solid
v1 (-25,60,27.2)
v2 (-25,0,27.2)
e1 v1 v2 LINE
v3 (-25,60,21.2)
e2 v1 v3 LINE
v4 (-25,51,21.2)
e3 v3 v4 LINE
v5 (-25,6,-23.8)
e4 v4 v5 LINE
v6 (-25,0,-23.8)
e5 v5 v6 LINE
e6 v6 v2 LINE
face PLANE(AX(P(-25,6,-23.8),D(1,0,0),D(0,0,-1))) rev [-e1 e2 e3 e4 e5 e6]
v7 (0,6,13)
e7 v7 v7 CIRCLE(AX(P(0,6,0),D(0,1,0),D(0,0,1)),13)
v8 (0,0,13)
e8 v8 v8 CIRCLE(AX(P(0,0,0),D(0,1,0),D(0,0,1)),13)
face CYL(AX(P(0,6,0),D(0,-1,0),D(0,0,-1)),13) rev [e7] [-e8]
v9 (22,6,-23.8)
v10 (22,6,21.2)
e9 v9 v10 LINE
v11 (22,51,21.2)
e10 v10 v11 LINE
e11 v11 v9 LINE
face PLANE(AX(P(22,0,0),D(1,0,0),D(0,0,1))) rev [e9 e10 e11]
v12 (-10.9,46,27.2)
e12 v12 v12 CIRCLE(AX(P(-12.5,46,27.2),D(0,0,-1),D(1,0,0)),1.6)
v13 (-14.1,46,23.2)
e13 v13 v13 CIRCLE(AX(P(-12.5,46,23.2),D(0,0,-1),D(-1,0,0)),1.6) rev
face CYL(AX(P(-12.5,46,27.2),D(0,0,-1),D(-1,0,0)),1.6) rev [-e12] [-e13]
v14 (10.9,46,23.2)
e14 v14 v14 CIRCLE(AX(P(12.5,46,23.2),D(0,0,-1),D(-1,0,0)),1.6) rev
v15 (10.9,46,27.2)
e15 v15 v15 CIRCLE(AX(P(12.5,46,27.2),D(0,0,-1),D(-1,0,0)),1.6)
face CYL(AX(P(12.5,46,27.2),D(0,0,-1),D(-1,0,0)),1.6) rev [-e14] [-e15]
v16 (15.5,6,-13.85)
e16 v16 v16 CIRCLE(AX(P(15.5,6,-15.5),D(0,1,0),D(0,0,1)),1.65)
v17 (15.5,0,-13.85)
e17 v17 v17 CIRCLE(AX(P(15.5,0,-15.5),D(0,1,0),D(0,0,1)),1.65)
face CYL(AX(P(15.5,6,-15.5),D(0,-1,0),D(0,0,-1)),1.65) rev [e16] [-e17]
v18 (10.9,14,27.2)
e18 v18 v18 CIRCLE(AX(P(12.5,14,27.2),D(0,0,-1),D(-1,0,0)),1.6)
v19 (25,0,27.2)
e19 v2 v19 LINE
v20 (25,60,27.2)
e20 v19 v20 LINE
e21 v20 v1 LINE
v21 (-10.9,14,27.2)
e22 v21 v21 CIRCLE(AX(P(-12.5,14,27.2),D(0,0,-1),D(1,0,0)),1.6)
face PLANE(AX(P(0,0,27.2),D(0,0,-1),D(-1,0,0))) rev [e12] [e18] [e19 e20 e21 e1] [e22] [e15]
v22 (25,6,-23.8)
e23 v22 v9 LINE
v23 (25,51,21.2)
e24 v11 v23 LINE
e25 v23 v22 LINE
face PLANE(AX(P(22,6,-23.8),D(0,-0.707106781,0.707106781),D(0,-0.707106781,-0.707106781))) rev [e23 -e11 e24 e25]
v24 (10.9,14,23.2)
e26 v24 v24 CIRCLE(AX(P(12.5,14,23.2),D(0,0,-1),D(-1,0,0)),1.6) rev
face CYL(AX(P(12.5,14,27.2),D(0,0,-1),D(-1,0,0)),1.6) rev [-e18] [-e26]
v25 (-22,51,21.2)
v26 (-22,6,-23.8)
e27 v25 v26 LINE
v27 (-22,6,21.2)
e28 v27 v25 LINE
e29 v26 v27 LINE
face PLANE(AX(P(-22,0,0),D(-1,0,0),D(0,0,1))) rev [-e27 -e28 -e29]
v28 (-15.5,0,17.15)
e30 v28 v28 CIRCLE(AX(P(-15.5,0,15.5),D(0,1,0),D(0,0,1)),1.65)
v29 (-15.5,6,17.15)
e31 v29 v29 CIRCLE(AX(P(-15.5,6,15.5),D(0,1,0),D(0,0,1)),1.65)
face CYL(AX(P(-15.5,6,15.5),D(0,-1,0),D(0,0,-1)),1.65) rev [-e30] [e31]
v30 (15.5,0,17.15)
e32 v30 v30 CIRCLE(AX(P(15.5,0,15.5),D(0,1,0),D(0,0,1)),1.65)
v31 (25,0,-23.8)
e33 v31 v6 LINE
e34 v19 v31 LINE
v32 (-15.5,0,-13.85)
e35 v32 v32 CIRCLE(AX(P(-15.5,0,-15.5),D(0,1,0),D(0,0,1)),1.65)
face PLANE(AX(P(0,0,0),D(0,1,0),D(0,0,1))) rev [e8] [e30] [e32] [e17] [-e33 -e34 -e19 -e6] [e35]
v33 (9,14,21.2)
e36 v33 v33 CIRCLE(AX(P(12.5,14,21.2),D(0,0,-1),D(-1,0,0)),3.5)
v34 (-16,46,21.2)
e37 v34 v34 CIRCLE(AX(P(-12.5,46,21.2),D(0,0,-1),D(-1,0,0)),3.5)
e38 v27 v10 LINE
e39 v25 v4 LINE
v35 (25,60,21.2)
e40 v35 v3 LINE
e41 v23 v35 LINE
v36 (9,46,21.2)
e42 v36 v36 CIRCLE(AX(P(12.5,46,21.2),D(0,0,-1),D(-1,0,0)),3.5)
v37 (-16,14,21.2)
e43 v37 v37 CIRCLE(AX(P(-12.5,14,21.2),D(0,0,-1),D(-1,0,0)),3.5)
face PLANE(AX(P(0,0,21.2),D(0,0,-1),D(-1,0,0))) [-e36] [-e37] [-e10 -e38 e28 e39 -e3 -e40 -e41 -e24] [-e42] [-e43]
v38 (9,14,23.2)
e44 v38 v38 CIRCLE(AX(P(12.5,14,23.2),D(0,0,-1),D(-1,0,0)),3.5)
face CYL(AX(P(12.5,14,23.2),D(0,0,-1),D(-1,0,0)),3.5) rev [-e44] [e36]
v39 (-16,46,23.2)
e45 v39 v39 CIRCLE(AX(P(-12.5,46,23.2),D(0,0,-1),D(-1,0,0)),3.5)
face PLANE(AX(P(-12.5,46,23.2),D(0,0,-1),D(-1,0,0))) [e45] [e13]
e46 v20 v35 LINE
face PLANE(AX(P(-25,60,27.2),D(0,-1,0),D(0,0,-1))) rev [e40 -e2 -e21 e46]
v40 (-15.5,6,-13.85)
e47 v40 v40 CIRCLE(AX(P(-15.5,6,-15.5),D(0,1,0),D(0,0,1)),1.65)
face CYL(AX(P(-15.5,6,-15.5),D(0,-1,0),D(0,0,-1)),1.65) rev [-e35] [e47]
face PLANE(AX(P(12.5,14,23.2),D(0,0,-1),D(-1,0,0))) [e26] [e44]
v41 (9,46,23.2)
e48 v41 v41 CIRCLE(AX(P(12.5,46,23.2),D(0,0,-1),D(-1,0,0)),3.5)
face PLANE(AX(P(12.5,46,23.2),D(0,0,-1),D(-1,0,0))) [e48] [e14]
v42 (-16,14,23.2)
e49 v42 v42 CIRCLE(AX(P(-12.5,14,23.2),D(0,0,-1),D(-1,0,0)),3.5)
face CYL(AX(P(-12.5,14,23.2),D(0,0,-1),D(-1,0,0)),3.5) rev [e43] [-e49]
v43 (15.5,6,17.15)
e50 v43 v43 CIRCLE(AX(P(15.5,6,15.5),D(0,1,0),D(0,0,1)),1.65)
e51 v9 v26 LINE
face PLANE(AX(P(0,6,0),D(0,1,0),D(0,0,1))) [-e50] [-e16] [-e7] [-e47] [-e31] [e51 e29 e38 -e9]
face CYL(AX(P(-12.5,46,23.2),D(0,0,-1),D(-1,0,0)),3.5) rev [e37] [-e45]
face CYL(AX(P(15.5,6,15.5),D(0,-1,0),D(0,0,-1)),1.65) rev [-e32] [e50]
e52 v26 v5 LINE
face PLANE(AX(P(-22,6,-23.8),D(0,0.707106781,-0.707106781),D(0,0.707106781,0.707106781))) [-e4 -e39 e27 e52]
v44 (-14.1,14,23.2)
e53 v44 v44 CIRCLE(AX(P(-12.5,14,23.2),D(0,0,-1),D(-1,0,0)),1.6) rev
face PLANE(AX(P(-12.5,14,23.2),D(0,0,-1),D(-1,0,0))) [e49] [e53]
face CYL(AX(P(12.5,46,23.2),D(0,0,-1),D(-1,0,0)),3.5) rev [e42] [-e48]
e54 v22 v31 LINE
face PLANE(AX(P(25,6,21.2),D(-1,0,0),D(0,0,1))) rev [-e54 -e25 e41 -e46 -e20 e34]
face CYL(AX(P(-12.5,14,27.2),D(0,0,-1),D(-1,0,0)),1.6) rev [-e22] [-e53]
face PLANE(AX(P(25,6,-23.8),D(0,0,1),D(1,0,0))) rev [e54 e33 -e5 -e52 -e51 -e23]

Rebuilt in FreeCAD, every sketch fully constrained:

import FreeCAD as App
import Part
import Sketcher
from FreeCAD import Vector
Q = App.Units.Quantity

doc = App.newDocument("Part")
body = doc.addObject("PartDesign::Body", "Body")

# Sketch on XZ plane
sketch1 = body.newObject("Sketcher::SketchObject", "Sketch")
sketch1.AttachmentSupport = (doc.getObject("XZ_Plane"), [""])
sketch1.MapMode = "FlatFace"
sketch1.addGeometry([
    Part.LineSegment(Vector(-25, -23.8, 0), Vector(-25, 21.2, 0)),  # 0
    Part.LineSegment(Vector(-25, 21.2, 0), Vector(25, 21.2, 0)),  # 1
    Part.LineSegment(Vector(25, 21.2, 0), Vector(25, -23.8, 0)),  # 2
    Part.LineSegment(Vector(25, -23.8, 0), Vector(-25, -23.8, 0)),  # 3
    Part.Circle(Vector(-15.5, 15.5, 0), Vector(0, 0, 1), 1.6),  # 4
    Part.Circle(Vector(15.5, 15.5, 0), Vector(0, 0, 1), 1.6),  # 5
    Part.Circle(Vector(-15.5, -15.5, 0), Vector(0, 0, 1), 1.6),  # 6
    Part.Circle(Vector(0, 0, 0), Vector(0, 0, 1), 13),  # 7
    Part.Circle(Vector(15.5, -15.5, 0), Vector(0, 0, 1), 1.6),  # 8
], False)
sketch1.addConstraint([
    Sketcher.Constraint("Coincident", 0, 2, 1, 1),
    Sketcher.Constraint("Coincident", 1, 2, 2, 1),
    Sketcher.Constraint("Coincident", 2, 2, 3, 1),
    Sketcher.Constraint("Coincident", 3, 2, 0, 1),
    Sketcher.Constraint("Vertical", 0),
    Sketcher.Constraint("Horizontal", 1),
    Sketcher.Constraint("Vertical", 2),
    Sketcher.Constraint("Horizontal", 3),
    Sketcher.Constraint("Coincident", 7, 3, -1, 1),
    Sketcher.Constraint("Equal", 4, 5),
    Sketcher.Constraint("Equal", 5, 6),
    Sketcher.Constraint("Equal", 6, 8),
    Sketcher.Constraint("Symmetric", 5, 3, 6, 3, -1, 1),
    Sketcher.Constraint("Symmetric", 4, 3, 8, 3, -1, 1),
    Sketcher.Constraint("Symmetric", 4, 3, 5, 3, -2),
    Sketcher.Constraint("Diameter", 7, Q("26 mm")),
    Sketcher.Constraint("Diameter", 4, Q("3.3 mm")),
    Sketcher.Constraint("DistanceX", 1, 1, 1, 2, Q("50 mm")),
    Sketcher.Constraint("DistanceY", 0, 1, 0, 2, Q("45 mm")),
    Sketcher.Constraint("DistanceX", 0, 2, -1, 1, Q("25 mm")),
    Sketcher.Constraint("DistanceX", 4, 3, 5, 3, Q("31 mm")),
    Sketcher.Constraint("DistanceY", 6, 3, 4, 3, Q("31 mm")),
    Sketcher.Constraint("DistanceY", -1, 1, 0, 2, Q("21.2 mm")),
])
pad1 = body.newObject("PartDesign::Pad", "Pad")
pad1.Profile = sketch1
pad1.Length = 6
pad1.Reversed = True

# Sketch on XY plane
sketch2 = body.newObject("Sketcher::SketchObject", "Sketch001")
sketch2.AttachmentSupport = (doc.getObject("XY_Plane"), [""])
sketch2.MapMode = "FlatFace"
sketch2.AttachmentOffset = App.Placement(Vector(0, 0, 21.2), App.Rotation())
sketch2.addGeometry([
    Part.LineSegment(Vector(-25, 60, 0), Vector(-25, 0, 0)),
    Part.LineSegment(Vector(-25, 0, 0), Vector(25, 0, 0)),
    Part.LineSegment(Vector(25, 0, 0), Vector(25, 60, 0)),
    Part.LineSegment(Vector(25, 60, 0), Vector(-25, 60, 0)),
], False)
sketch2.addConstraint([
    Sketcher.Constraint("Coincident", 0, 2, 1, 1),
    Sketcher.Constraint("Coincident", 1, 2, 2, 1),
    Sketcher.Constraint("Coincident", 2, 2, 3, 1),
    Sketcher.Constraint("Coincident", 3, 2, 0, 1),
    Sketcher.Constraint("Vertical", 0),
    Sketcher.Constraint("Horizontal", 1),
    Sketcher.Constraint("Vertical", 2),
    Sketcher.Constraint("Horizontal", 3),
    Sketcher.Constraint("Symmetric", 0, 2, 1, 2, -1, 1),
    Sketcher.Constraint("DistanceX", 1, 1, 1, 2, Q("50 mm")),
    Sketcher.Constraint("DistanceY", 0, 2, 0, 1, Q("60 mm")),
])
pad2 = body.newObject("PartDesign::Pad", "Pad001")
pad2.Profile = sketch2
pad2.Length = 6

# Sketch on YZ plane
sketch3 = body.newObject("Sketcher::SketchObject", "Sketch002")
sketch3.AttachmentSupport = (doc.getObject("YZ_Plane"), [""])
sketch3.MapMode = "FlatFace"
sketch3.AttachmentOffset = App.Placement(Vector(0, 0, -25), App.Rotation())
sketch3.addGeometry([
    Part.LineSegment(Vector(51, 21, 0), Vector(6, -24, 0)),
    Part.LineSegment(Vector(6, -24, 0), Vector(6, 21, 0)),
    Part.LineSegment(Vector(6, 21, 0), Vector(51, 21, 0)),
], False)
sketch3.addConstraint([
    Sketcher.Constraint("Coincident", 0, 2, 1, 1),
    Sketcher.Constraint("Coincident", 1, 2, 2, 1),
    Sketcher.Constraint("Coincident", 2, 2, 0, 1),
    Sketcher.Constraint("Vertical", 1),
    Sketcher.Constraint("Horizontal", 2),
    Sketcher.Constraint("Equal", 2, 1),
    Sketcher.Constraint("DistanceX", 2, 1, 2, 2, Q("45 mm")),
    Sketcher.Constraint("DistanceX", -1, 1, 0, 2, Q("6 mm")),
    Sketcher.Constraint("DistanceY", 0, 2, -1, 1, Q("23.8 mm")),
])
pad3 = body.newObject("PartDesign::Pad", "Pad002")
pad3.Profile = sketch3
pad3.Length = 3
doc.recompute()

mirrored = body.newObject("PartDesign::Mirrored", "Mirrored")
mirrored.Originals = [pad3]
mirrored.MirrorPlane = (doc.getObject("YZ_Plane"), [""])
body.Tip = mirrored

# Sketch on XY plane
sketch4 = body.newObject("Sketcher::SketchObject", "Sketch003")
sketch4.AttachmentSupport = (doc.getObject("XY_Plane"), [""])
sketch4.MapMode = "FlatFace"
sketch4.AttachmentOffset = App.Placement(Vector(0, 0, 21.2), App.Rotation())
sketch4.addGeometry([
    Part.Circle(Vector(12.5, 46, 0), Vector(0, 0, 1), 1.6),
    Part.Circle(Vector(12.5, 14, 0), Vector(0, 0, 1), 1.6),
    Part.Circle(Vector(-12.5, 14, 0), Vector(0, 0, 1), 1.6),
    Part.Circle(Vector(-12.5, 46, 0), Vector(0, 0, 1), 1.6),
], False)
sketch4.addConstraint([
    Sketcher.Constraint("Equal", 0, 1),
    Sketcher.Constraint("Equal", 1, 2),
    Sketcher.Constraint("Equal", 2, 3),
    Sketcher.Constraint("Symmetric", 1, 3, 2, 3, -2),
    Sketcher.Constraint("Symmetric", 0, 3, 3, 3, -2),
    Sketcher.Constraint("Vertical", 0, 3, 1, 3),
    Sketcher.Constraint("Diameter", 0, Q("3.2 mm")),
    Sketcher.Constraint("DistanceY", -1, 1, 0, 3, Q("46 mm")),
    Sketcher.Constraint("DistanceY", -1, 1, 1, 3, Q("14 mm")),
    Sketcher.Constraint("DistanceX", 2, 3, 1, 3, Q("25 mm")),
])
pocket1 = body.newObject("PartDesign::Pocket", "Pocket")
pocket1.Profile = sketch4
pocket1.Type = "ThroughAll"
pocket1.Reversed = True

# Sketch on XY plane
sketch5 = body.newObject("Sketcher::SketchObject", "Sketch004")
sketch5.AttachmentSupport = (doc.getObject("XY_Plane"), [""])
sketch5.MapMode = "FlatFace"
sketch5.AttachmentOffset = App.Placement(Vector(0, 0, 21.2), App.Rotation())
sketch5.addGeometry([
    Part.Circle(Vector(12.5, 46, 0), Vector(0, 0, 1), 3.5),
    Part.Circle(Vector(-12.5, 46, 0), Vector(0, 0, 1), 3.5),
    Part.Circle(Vector(12.5, 14, 0), Vector(0, 0, 1), 3.5),
    Part.Circle(Vector(-12.5, 14, 0), Vector(0, 0, 1), 3.5),
], False)
sketch5.addConstraint([
    Sketcher.Constraint("Equal", 0, 1),
    Sketcher.Constraint("Equal", 1, 2),
    Sketcher.Constraint("Equal", 2, 3),
    Sketcher.Constraint("Symmetric", 0, 3, 1, 3, -2),
    Sketcher.Constraint("Symmetric", 2, 3, 3, 3, -2),
    Sketcher.Constraint("Vertical", 0, 3, 2, 3),
    Sketcher.Constraint("Diameter", 0, Q("7 mm")),
    Sketcher.Constraint("DistanceY", -1, 1, 0, 3, Q("46 mm")),
    Sketcher.Constraint("DistanceY", -1, 1, 2, 3, Q("14 mm")),
    Sketcher.Constraint("DistanceX", 1, 3, 0, 3, Q("25 mm")),
])
pocket2 = body.newObject("PartDesign::Pocket", "Pocket001")
pocket2.Profile = sketch5
pocket2.Length = 2
pocket2.Reversed = True

doc.recompute()
